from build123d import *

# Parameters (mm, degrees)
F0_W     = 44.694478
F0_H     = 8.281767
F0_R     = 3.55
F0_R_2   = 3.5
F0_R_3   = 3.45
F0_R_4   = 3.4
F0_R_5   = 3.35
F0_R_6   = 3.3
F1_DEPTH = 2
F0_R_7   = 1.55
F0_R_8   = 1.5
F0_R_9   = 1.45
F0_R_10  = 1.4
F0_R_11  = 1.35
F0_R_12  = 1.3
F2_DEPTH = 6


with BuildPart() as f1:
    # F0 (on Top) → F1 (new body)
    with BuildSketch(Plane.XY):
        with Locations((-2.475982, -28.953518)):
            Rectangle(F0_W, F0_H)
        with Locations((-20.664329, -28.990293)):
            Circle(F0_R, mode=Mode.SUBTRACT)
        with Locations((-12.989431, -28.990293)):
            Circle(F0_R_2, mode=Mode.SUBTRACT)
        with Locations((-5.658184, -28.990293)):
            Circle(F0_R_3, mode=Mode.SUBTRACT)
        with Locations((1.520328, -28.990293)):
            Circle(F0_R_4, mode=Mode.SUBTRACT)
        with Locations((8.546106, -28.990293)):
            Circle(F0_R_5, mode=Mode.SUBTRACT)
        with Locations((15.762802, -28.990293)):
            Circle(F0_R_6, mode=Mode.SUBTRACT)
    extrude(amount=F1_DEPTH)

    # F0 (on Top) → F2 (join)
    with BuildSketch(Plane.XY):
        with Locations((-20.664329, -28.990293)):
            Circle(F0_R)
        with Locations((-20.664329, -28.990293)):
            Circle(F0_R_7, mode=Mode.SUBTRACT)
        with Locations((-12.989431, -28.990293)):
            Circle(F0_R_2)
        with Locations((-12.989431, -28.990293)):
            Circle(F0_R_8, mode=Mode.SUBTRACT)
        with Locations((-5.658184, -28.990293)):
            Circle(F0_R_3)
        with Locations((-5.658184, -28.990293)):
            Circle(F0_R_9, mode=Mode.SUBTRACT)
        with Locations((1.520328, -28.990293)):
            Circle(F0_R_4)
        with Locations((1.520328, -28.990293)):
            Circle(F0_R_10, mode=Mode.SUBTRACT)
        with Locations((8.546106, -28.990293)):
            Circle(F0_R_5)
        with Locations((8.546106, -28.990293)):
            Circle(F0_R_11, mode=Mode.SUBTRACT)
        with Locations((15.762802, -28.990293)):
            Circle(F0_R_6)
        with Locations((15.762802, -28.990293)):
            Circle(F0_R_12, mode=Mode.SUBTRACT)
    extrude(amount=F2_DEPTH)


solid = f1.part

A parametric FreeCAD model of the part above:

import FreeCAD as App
import Part
import Sketcher
from FreeCAD import Vector

doc = App.newDocument("Part")
body = doc.addObject("PartDesign::Body", "Body")

# Sketch on XY plane
sketch1 = body.newObject("Sketcher::SketchObject", "Sketch")
sketch1.AttachmentSupport = (doc.getObject("XY_Plane"), [""])
sketch1.MapMode = "FlatFace"
sketch1.addGeometry([
    Part.LineSegment(Vector(-24.8, -24.8, 0), Vector(-24.8, -33.1, 0)),  # 0
    Part.LineSegment(Vector(-24.8, -33.1, 0), Vector(19.9, -33.1, 0)),  # 1
    Part.LineSegment(Vector(19.9, -33.1, 0), Vector(19.9, -24.8, 0)),  # 2
    Part.LineSegment(Vector(19.9, -24.8, 0), Vector(-24.8, -24.8, 0)),  # 3
    Part.Circle(Vector(-20.7, -29, 0), Vector(0, 0, 1), 3.5),  # 4
    Part.Circle(Vector(-13, -29, 0), Vector(0, 0, 1), 3.5),  # 5
    Part.Circle(Vector(-5.7, -29, 0), Vector(0, 0, 1), 3.5),  # 6
    Part.Circle(Vector(1.5, -29, 0), Vector(0, 0, 1), 3.4),  # 7
    Part.Circle(Vector(8.5, -29, 0), Vector(0, 0, 1), 3.4),  # 8
    Part.Circle(Vector(15.8, -29, 0), Vector(0, 0, 1), 3.3),  # 9
], False)
sketch1.addConstraint([
    Sketcher.Constraint("Coincident", 0, 2, 1, 1),
    Sketcher.Constraint("Coincident", 1, 2, 2, 1),
    Sketcher.Constraint("Coincident", 2, 2, 3, 1),
    Sketcher.Constraint("Coincident", 3, 2, 0, 1),
    Sketcher.Constraint("Vertical", 0),
    Sketcher.Constraint("Horizontal", 1),
    Sketcher.Constraint("Vertical", 2),
    Sketcher.Constraint("Horizontal", 3),
    Sketcher.Constraint("Horizontal", 4, 3, 5, 3),
    Sketcher.Constraint("Horizontal", 5, 3, 6, 3),
    Sketcher.Constraint("Horizontal", 6, 3, 7, 3),
    Sketcher.Constraint("Horizontal", 7, 3, 8, 3),
    Sketcher.Constraint("Horizontal", 8, 3, 9, 3),
    Sketcher.Constraint("Diameter", 5, 7.0),
    Sketcher.Constraint("Diameter", 4, 7.1),
    Sketcher.Constraint("Diameter", 6, 6.9),
    Sketcher.Constraint("Diameter", 7, 6.8),
    Sketcher.Constraint("Diameter", 8, 6.7),
    Sketcher.Constraint("Diameter", 9, 6.6),
    Sketcher.Constraint("DistanceX", 1, 1, 1, 2, 44.694478),
    Sketcher.Constraint("DistanceY", 0, 2, -1, 1, 33.094401),
    Sketcher.Constraint("DistanceY", 0, 2, 0, 1, 8.281767),
    Sketcher.Constraint("DistanceX", 4, 3, -1, 1, 20.664329),
    Sketcher.Constraint("DistanceX", 5, 3, -1, 1, 12.989431),
    Sketcher.Constraint("DistanceX", 0, 2, -1, 1, 24.823221),
    Sketcher.Constraint("DistanceX", 5, 3, 7, 3, 14.509759),
    Sketcher.Constraint("DistanceX", 6, 3, 8, 3, 14.20429),
    Sketcher.Constraint("DistanceX", 4, 3, 9, 3, 36.427131),
    Sketcher.Constraint("DistanceY", 0, 2, 4, 3, 4.104108),
    Sketcher.Constraint("DistanceX", 8, 3, 1, 2, 11.325151),
])
pad1 = body.newObject("PartDesign::Pad", "Pad")
pad1.Profile = sketch1
pad1.Length = 2

# Sketch on XY plane
sketch2 = body.newObject("Sketcher::SketchObject", "Sketch001")
sketch2.AttachmentSupport = (doc.getObject("XY_Plane"), [""])
sketch2.MapMode = "FlatFace"
sketch2.addGeometry([
    Part.Circle(Vector(-20.7, -29, 0), Vector(0, 0, 1), 3.5),  # 0
    Part.Circle(Vector(-20.7, -29, 0), Vector(0, 0, 1), 1.6),  # 1
    Part.Circle(Vector(-13, -29, 0), Vector(0, 0, 1), 3.5),  # 2
    Part.Circle(Vector(-13, -29, 0), Vector(0, 0, 1), 1.5),  # 3
    Part.Circle(Vector(-5.7, -29, 0), Vector(0, 0, 1), 3.5),  # 4
    Part.Circle(Vector(-5.7, -29, 0), Vector(0, 0, 1), 1.4),  # 5
    Part.Circle(Vector(1.5, -29, 0), Vector(0, 0, 1), 3.4),  # 6
    Part.Circle(Vector(1.5, -29, 0), Vector(0, 0, 1), 1.4),  # 7
    Part.Circle(Vector(8.5, -29, 0), Vector(0, 0, 1), 3.4),  # 8
    Part.Circle(Vector(8.5, -29, 0), Vector(0, 0, 1), 1.4),  # 9
    Part.Circle(Vector(15.8, -29, 0), Vector(0, 0, 1), 3.3),  # 10
    Part.Circle(Vector(15.8, -29, 0), Vector(0, 0, 1), 1.3),  # 11
], False)
sketch2.addConstraint([
    Sketcher.Constraint("Coincident", 1, 3, 0, 3),
    Sketcher.Constraint("Coincident", 3, 3, 2, 3),
    Sketcher.Constraint("Coincident", 5, 3, 4, 3),
    Sketcher.Constraint("Coincident", 7, 3, 6, 3),
    Sketcher.Constraint("Coincident", 9, 3, 8, 3),
    Sketcher.Constraint("Coincident", 11, 3, 10, 3),
    Sketcher.Constraint("Horizontal", 1, 3, 2, 3),
    Sketcher.Constraint("Horizontal", 3, 3, 4, 3),
    Sketcher.Constraint("Horizontal", 5, 3, 6, 3),
    Sketcher.Constraint("Horizontal", 7, 3, 8, 3),
    Sketcher.Constraint("Horizontal", 9, 3, 10, 3),
    Sketcher.Constraint("Diameter", 2, 7.0),
    Sketcher.Constraint("Diameter", 3, 3.0),
    Sketcher.Constraint("Diameter", 0, 7.1),
    Sketcher.Constraint("Diameter", 1, 3.1),
    Sketcher.Constraint("Diameter", 4, 6.9),
    Sketcher.Constraint("Diameter", 5, 2.9),
    Sketcher.Constraint("Diameter", 6, 6.8),
    Sketcher.Constraint("Diameter", 7, 2.8),
    Sketcher.Constraint("Diameter", 8, 6.7),
    Sketcher.Constraint("Diameter", 9, 2.7),
    Sketcher.Constraint("Diameter", 10, 6.6),
    Sketcher.Constraint("Diameter", 11, 2.6),
    Sketcher.Constraint("DistanceX", 0, 3, -1, 1, 20.664329),
    Sketcher.Constraint("DistanceX", 2, 3, -1, 1, 12.989431),
    Sketcher.Constraint("DistanceX", 2, 3, 6, 3, 14.509759),
    Sketcher.Constraint("DistanceX", 4, 3, 8, 3, 14.20429),
    Sketcher.Constraint("DistanceY", 0, 3, -1, 1, 28.990293),
    Sketcher.Constraint("DistanceX", 4, 3, -1, 1, 5.658184),
    Sketcher.Constraint("DistanceX", -1, 1, 10, 3, 15.762802),
])
pad2 = body.newObject("PartDesign::Pad", "Pad001")
pad2.Profile = sketch2
pad2.Length = 6

doc.recompute()
